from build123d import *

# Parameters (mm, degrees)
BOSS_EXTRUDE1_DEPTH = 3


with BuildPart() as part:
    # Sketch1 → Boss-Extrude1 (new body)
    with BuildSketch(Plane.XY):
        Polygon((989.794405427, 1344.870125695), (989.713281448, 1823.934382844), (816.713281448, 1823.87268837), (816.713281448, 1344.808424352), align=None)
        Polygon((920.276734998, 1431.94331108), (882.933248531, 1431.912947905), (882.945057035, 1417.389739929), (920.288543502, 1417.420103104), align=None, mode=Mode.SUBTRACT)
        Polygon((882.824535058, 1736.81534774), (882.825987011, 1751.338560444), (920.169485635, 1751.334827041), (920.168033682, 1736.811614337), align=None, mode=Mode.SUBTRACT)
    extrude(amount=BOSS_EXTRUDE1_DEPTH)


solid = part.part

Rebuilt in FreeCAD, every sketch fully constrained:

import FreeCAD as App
import Part
import Sketcher

V = App.Vector

doc = App.newDocument("Part")
body = doc.addObject("PartDesign::Body", "Body")

# Sketch on XY plane
sketch1 = doc.addObject("Sketcher::SketchObject", "Sketch")
body.addObject(sketch1)
sketch1.AttachmentSupport = (doc.XY_Plane, [""])
sketch1.MapMode = "FlatFace"
sketch1.addGeometry([
    Part.LineSegment(V(989.794405, 1344.870126, 0), V(989.713281, 1823.934383, 0)),  # 0
    Part.LineSegment(V(989.713281, 1823.934383, 0), V(816.713281, 1823.872688, 0)),  # 1
    Part.LineSegment(V(816.713281, 1823.872688, 0), V(816.713281, 1344.808424, 0)),  # 2
    Part.LineSegment(V(816.713281, 1344.808424, 0), V(989.794405, 1344.870126, 0)),  # 3
    Part.LineSegment(V(882.933249, 1431.912948, 0), V(920.276735, 1431.943311, 0)),  # 4
    Part.LineSegment(V(920.276735, 1431.943311, 0), V(920.288544, 1417.420103, 0)),  # 5
    Part.LineSegment(V(920.288544, 1417.420103, 0), V(882.945057, 1417.38974, 0)),  # 6
    Part.LineSegment(V(882.945057, 1417.38974, 0), V(882.933249, 1431.912948, 0)),  # 7
    Part.LineSegment(V(920.168034, 1736.811614, 0), V(882.824535, 1736.815348, 0)),  # 8
    Part.LineSegment(V(882.824535, 1736.815348, 0), V(882.825987, 1751.33856, 0)),  # 9
    Part.LineSegment(V(882.825987, 1751.33856, 0), V(920.169486, 1751.334827, 0)),  # 10
    Part.LineSegment(V(920.169486, 1751.334827, 0), V(920.168034, 1736.811614, 0)),  # 11
], False)
sketch1.addConstraint([
    Sketcher.Constraint("Coincident", 0, 2, 1, 1),
    Sketcher.Constraint("Coincident", 1, 2, 2, 1),
    Sketcher.Constraint("Coincident", 2, 2, 3, 1),
    Sketcher.Constraint("Coincident", 3, 2, 0, 1),
    Sketcher.Constraint("Coincident", 4, 2, 5, 1),
    Sketcher.Constraint("Coincident", 5, 2, 6, 1),
    Sketcher.Constraint("Coincident", 6, 2, 7, 1),
    Sketcher.Constraint("Coincident", 7, 2, 4, 1),
    Sketcher.Constraint("Coincident", 8, 2, 9, 1),
    Sketcher.Constraint("Coincident", 9, 2, 10, 1),
    Sketcher.Constraint("Coincident", 10, 2, 11, 1),
    Sketcher.Constraint("Coincident", 11, 2, 8, 1),
    Sketcher.Constraint("Vertical", 2),
    Sketcher.Constraint("Parallel", 1, 3),
    Sketcher.Constraint("Perpendicular", 4, 5),
    Sketcher.Constraint("Perpendicular", 5, 6),
    Sketcher.Constraint("Perpendicular", 6, 7),
    Sketcher.Constraint("Perpendicular", 8, 9),
    Sketcher.Constraint("Perpendicular", 9, 10),
    Sketcher.Constraint("Perpendicular", 10, 11),
    Sketcher.Constraint("Equal", 6, 8),
    Sketcher.Constraint("Equal", 7, 9),
    Sketcher.Constraint("DistanceX", 1, 2, 0, 2, 173.0),
    Sketcher.Constraint("Distance", 4, 37.343499),
    Sketcher.Constraint("DistanceY", 2, 2, 3, 2, 0.061701),
    Sketcher.Constraint("DistanceY", 7, 2, 8, 2, 304.9024),
    Sketcher.Constraint("DistanceX", 8, 2, 4, 2, 37.4522),
    Sketcher.Constraint("DistanceY", 2, 2, 2, 1, 479.064264),
    Sketcher.Constraint("DistanceX", -1, 1, 0, 2, 989.713281),
    Sketcher.Constraint("DistanceY", -1, 1, 1, 2, 1823.872688),
    Sketcher.Constraint("DistanceY", -1, 1, 4, 2, 1431.943311),
    Sketcher.Constraint("DistanceY", -1, 1, 6, 2, 1417.38974),
    Sketcher.Constraint("DistanceX", -1, 1, 7, 2, 882.933249),
    Sketcher.Constraint("DistanceY", -1, 1, 9, 2, 1751.33856),
    Sketcher.Constraint("DistanceX", 4, 2, 3, 2, 69.51767),
    Sketcher.Constraint("DistanceX", 8, 2, 9, 2, 0.001452),
])
pad1 = doc.addObject("PartDesign::Pad", "Pad")
body.addObject(pad1)
pad1.Profile = sketch1
pad1.Length = 3

doc.recompute()
